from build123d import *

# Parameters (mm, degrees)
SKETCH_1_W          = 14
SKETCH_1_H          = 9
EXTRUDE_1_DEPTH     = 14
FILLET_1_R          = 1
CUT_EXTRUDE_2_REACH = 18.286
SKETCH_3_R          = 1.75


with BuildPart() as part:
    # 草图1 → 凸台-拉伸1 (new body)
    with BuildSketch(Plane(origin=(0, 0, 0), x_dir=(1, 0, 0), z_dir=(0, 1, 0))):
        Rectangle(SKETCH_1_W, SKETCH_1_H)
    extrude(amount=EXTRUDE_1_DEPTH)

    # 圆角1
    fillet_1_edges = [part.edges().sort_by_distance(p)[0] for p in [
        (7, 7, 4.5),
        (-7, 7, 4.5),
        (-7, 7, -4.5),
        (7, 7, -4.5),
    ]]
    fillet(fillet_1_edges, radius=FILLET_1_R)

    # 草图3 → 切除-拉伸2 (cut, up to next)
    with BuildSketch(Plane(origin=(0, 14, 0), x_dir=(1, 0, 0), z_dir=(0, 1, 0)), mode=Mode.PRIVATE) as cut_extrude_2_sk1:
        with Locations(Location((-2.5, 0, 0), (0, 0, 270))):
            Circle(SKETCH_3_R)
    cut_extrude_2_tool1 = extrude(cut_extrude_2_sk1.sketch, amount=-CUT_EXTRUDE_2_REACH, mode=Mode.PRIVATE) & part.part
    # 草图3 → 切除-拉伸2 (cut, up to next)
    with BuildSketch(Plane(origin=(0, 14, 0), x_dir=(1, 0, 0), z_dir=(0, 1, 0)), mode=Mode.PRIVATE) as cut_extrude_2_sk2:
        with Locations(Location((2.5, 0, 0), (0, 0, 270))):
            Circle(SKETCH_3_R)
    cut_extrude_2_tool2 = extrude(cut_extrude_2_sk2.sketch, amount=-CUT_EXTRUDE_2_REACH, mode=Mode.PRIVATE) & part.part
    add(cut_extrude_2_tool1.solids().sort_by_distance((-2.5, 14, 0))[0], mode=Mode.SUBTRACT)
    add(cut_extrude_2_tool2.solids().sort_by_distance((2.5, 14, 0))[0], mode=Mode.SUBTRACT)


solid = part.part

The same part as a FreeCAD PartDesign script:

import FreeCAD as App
import Part
import Sketcher


def edges_at(feature, points):
    """Names of the edges that pass closest to the given points."""
    edges = feature.Shape.Edges
    near = lambda p: min(range(len(edges)), key=lambda i: edges[i].distToShape(Part.Vertex(*p))[0])
    return sorted({f"Edge{near(p) + 1}" for p in points})

doc = App.newDocument("Part")
body = doc.addObject("PartDesign::Body", "Body")

# Sketch on XZ plane
sketch1 = body.newObject("Sketcher::SketchObject", "Sketch")
sketch1.AttachmentSupport = (doc.getObject("XZ_Plane"), [""])
sketch1.MapMode = "FlatFace"
sketch1.addGeometry(Part.LineSegment(App.Vector(-7, -4.5, 0), App.Vector(-7, 4.5, 0)), False)
sketch1.addGeometry(Part.LineSegment(App.Vector(-7, 4.5, 0), App.Vector(7, 4.5, 0)), False)
sketch1.addGeometry(Part.LineSegment(App.Vector(7, 4.5, 0), App.Vector(7, -4.5, 0)), False)
sketch1.addGeometry(Part.LineSegment(App.Vector(7, -4.5, 0), App.Vector(-7, -4.5, 0)), False)
sketch1.addConstraint(Sketcher.Constraint("Coincident", 0, 2, 1, 1))
sketch1.addConstraint(Sketcher.Constraint("Coincident", 1, 2, 2, 1))
sketch1.addConstraint(Sketcher.Constraint("Coincident", 2, 2, 3, 1))
sketch1.addConstraint(Sketcher.Constraint("Coincident", 3, 2, 0, 1))
sketch1.addConstraint(Sketcher.Constraint("Vertical", 0))
sketch1.addConstraint(Sketcher.Constraint("Horizontal", 1))
sketch1.addConstraint(Sketcher.Constraint("Vertical", 2))
sketch1.addConstraint(Sketcher.Constraint("Horizontal", 3))
sketch1.addConstraint(Sketcher.Constraint("Symmetric", 0, 2, 2, 2, -1, 1))
sketch1.addConstraint(Sketcher.Constraint("DistanceX", 1, 1, 1, 2, 14.0))
sketch1.addConstraint(Sketcher.Constraint("DistanceY", 0, 1, 0, 2, 9.0))
pad1 = body.newObject("PartDesign::Pad", "Pad")
pad1.Profile = sketch1
pad1.Length = 14
pad1.Reversed = True
doc.recompute()

fillet = body.newObject("PartDesign::Fillet", "Fillet")
fillet.Base = (pad1, edges_at(pad1, [
    (7, 7, 4.5),
    (-7, 7, 4.5),
    (-7, 7, -4.5),
    (7, 7, -4.5),
]))
fillet.Radius = 1

# Sketch on XZ plane
sketch2 = body.newObject("Sketcher::SketchObject", "Sketch001")
sketch2.AttachmentSupport = (doc.getObject("XZ_Plane"), [""])
sketch2.MapMode = "FlatFace"
sketch2.AttachmentOffset = App.Placement(App.Vector(0, 0, -14), App.Rotation())
sketch2.addGeometry(Part.Circle(App.Vector(-2.5, 0, 0), App.Vector(0, 0, 1), 1.75), False)
sketch2.addConstraint(Sketcher.Constraint("PointOnObject", 0, 3, -1))
sketch2.addConstraint(Sketcher.Constraint("Diameter", 0, 3.5))
sketch2.addConstraint(Sketcher.Constraint("DistanceX", 0, 3, -1, 1, 2.5))
pocket1 = body.newObject("PartDesign::Pocket", "Pocket")
pocket1.Profile = sketch2
pocket1.Type = "UpToFirst"
pocket1.Reversed = True

# Sketch on XZ plane
sketch3 = body.newObject("Sketcher::SketchObject", "Sketch002")
sketch3.AttachmentSupport = (doc.getObject("XZ_Plane"), [""])
sketch3.MapMode = "FlatFace"
sketch3.AttachmentOffset = App.Placement(App.Vector(0, 0, -14), App.Rotation())
sketch3.addGeometry(Part.Circle(App.Vector(2.5, 0, 0), App.Vector(0, 0, 1), 1.75), False)
sketch3.addConstraint(Sketcher.Constraint("PointOnObject", 0, 3, -1))
sketch3.addConstraint(Sketcher.Constraint("Diameter", 0, 3.5))
sketch3.addConstraint(Sketcher.Constraint("DistanceX", -1, 1, 0, 3, 2.5))
pocket2 = body.newObject("PartDesign::Pocket", "Pocket001")
pocket2.Profile = sketch3
pocket2.Type = "UpToFirst"
pocket2.Reversed = True

doc.recompute()
